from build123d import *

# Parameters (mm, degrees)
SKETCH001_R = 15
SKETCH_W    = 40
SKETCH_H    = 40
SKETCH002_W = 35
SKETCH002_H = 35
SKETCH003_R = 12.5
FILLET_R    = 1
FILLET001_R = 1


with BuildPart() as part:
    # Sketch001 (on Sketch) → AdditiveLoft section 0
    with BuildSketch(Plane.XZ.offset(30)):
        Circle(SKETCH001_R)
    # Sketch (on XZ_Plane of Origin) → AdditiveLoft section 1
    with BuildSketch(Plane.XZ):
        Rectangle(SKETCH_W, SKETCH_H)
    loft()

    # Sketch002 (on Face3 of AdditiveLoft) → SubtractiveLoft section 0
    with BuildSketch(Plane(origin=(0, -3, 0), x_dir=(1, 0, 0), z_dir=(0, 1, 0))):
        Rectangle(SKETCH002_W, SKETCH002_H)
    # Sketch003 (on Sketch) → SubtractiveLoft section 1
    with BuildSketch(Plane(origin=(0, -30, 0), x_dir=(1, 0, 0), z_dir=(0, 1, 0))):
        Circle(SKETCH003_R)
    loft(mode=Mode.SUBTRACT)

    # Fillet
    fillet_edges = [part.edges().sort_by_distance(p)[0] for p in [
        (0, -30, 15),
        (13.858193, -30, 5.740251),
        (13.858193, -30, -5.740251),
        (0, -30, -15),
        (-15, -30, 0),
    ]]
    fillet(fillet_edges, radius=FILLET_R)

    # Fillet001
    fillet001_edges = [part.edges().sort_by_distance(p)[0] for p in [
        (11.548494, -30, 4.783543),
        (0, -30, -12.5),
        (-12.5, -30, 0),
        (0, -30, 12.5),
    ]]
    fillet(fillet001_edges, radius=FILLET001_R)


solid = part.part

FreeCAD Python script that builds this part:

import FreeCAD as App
import Part
import Sketcher

V = App.Vector


def edges_at(feature, points):
    """Names of the edges that pass closest to the given points."""
    edges = feature.Shape.Edges
    near = lambda p: min(range(len(edges)), key=lambda i: edges[i].distToShape(Part.Vertex(*p))[0])
    return sorted({f"Edge{near(p) + 1}" for p in points})

doc = App.newDocument("Part")
body = doc.addObject("PartDesign::Body", "Body")

# Sketch on XZ plane
sketch1 = body.newObject("Sketcher::SketchObject", "Sketch")
sketch1.AttachmentSupport = (doc.getObject("XZ_Plane"), [""])
sketch1.MapMode = "FlatFace"
sketch1.AttachmentOffset = App.Placement(V(0, 0, 30), App.Rotation())
sketch1.addGeometry(Part.Circle(V(0, 0, 0), V(0, 0, 1), 15), False)
sketch1.addConstraint(Sketcher.Constraint("Coincident", 0, 3, -1, 1))
sketch1.addConstraint(Sketcher.Constraint("Diameter", 0, 30.0))

# Sketch on XZ plane
sketch2 = body.newObject("Sketcher::SketchObject", "Sketch001")
sketch2.AttachmentSupport = (doc.getObject("XZ_Plane"), [""])
sketch2.MapMode = "FlatFace"
sketch2.addGeometry(Part.LineSegment(V(-20, 20, 0), V(-20, -20, 0)), False)
sketch2.addGeometry(Part.LineSegment(V(-20, -20, 0), V(20, -20, 0)), False)
sketch2.addGeometry(Part.LineSegment(V(20, -20, 0), V(20, 20, 0)), False)
sketch2.addGeometry(Part.LineSegment(V(20, 20, 0), V(-20, 20, 0)), False)
sketch2.addConstraint(Sketcher.Constraint("Coincident", 0, 2, 1, 1))
sketch2.addConstraint(Sketcher.Constraint("Coincident", 1, 2, 2, 1))
sketch2.addConstraint(Sketcher.Constraint("Coincident", 2, 2, 3, 1))
sketch2.addConstraint(Sketcher.Constraint("Coincident", 3, 2, 0, 1))
sketch2.addConstraint(Sketcher.Constraint("Vertical", 0))
sketch2.addConstraint(Sketcher.Constraint("Horizontal", 1))
sketch2.addConstraint(Sketcher.Constraint("Vertical", 2))
sketch2.addConstraint(Sketcher.Constraint("Horizontal", 3))
sketch2.addConstraint(Sketcher.Constraint("Symmetric", 0, 2, 2, 2, -1, 1))
sketch2.addConstraint(Sketcher.Constraint("Equal", 3, 0))
sketch2.addConstraint(Sketcher.Constraint("DistanceX", 1, 1, 1, 2, 40.0))

additiveloft = body.newObject("PartDesign::AdditiveLoft", "AdditiveLoft")
additiveloft.Profile = sketch1
additiveloft.Sections = [sketch2]

# Sketch on XZ plane
sketch3 = body.newObject("Sketcher::SketchObject", "Sketch002")
sketch3.AttachmentSupport = (doc.getObject("XZ_Plane"), [""])
sketch3.MapMode = "FlatFace"
sketch3.AttachmentOffset = App.Placement(V(0, 0, 3), App.Rotation())
sketch3.addGeometry(Part.LineSegment(V(-18, -18, 0), V(-18, 18, 0)), False)
sketch3.addGeometry(Part.LineSegment(V(-18, 18, 0), V(18, 18, 0)), False)
sketch3.addGeometry(Part.LineSegment(V(18, 18, 0), V(18, -18, 0)), False)
sketch3.addGeometry(Part.LineSegment(V(18, -18, 0), V(-18, -18, 0)), False)
sketch3.addConstraint(Sketcher.Constraint("Coincident", 0, 2, 1, 1))
sketch3.addConstraint(Sketcher.Constraint("Coincident", 1, 2, 2, 1))
sketch3.addConstraint(Sketcher.Constraint("Coincident", 2, 2, 3, 1))
sketch3.addConstraint(Sketcher.Constraint("Coincident", 3, 2, 0, 1))
sketch3.addConstraint(Sketcher.Constraint("Vertical", 0))
sketch3.addConstraint(Sketcher.Constraint("Horizontal", 1))
sketch3.addConstraint(Sketcher.Constraint("Vertical", 2))
sketch3.addConstraint(Sketcher.Constraint("Horizontal", 3))
sketch3.addConstraint(Sketcher.Constraint("Symmetric", 0, 2, 2, 2, -1, 1))
sketch3.addConstraint(Sketcher.Constraint("Equal", 3, 0))
sketch3.addConstraint(Sketcher.Constraint("DistanceX", 1, 1, 1, 2, 35.0))

# Sketch on XZ plane
sketch4 = body.newObject("Sketcher::SketchObject", "Sketch003")
sketch4.AttachmentSupport = (doc.getObject("XZ_Plane"), [""])
sketch4.MapMode = "FlatFace"
sketch4.AttachmentOffset = App.Placement(V(0, 0, 30), App.Rotation())
sketch4.addGeometry(Part.Circle(V(0, 0, 0), V(0, 0, 1), 12), False)
sketch4.addConstraint(Sketcher.Constraint("Coincident", 0, 3, -1, 1))
sketch4.addConstraint(Sketcher.Constraint("Diameter", 0, 25.0))

subtractiveloft = body.newObject("PartDesign::SubtractiveLoft", "SubtractiveLoft")
subtractiveloft.Profile = sketch3
subtractiveloft.Sections = [sketch4]
doc.recompute()

fillet = body.newObject("PartDesign::Fillet", "Fillet")
fillet.Base = (subtractiveloft, edges_at(subtractiveloft, [
    (0, -30, 15),
    (13.858, -30, 5.74),
    (13.858, -30, -5.74),
    (0, -30, -15),
    (-15, -30, 0),
]))
fillet.Radius = 1
doc.recompute()

fillet2 = body.newObject("PartDesign::Fillet", "Fillet001")
fillet2.Base = (fillet, edges_at(fillet, [
    (11.548, -30, 4.784),
    (0, -30, -12.5),
    (-12.5, -30, 0),
    (0, -30, 12.5),
]))
fillet2.Radius = 1

doc.recompute()
